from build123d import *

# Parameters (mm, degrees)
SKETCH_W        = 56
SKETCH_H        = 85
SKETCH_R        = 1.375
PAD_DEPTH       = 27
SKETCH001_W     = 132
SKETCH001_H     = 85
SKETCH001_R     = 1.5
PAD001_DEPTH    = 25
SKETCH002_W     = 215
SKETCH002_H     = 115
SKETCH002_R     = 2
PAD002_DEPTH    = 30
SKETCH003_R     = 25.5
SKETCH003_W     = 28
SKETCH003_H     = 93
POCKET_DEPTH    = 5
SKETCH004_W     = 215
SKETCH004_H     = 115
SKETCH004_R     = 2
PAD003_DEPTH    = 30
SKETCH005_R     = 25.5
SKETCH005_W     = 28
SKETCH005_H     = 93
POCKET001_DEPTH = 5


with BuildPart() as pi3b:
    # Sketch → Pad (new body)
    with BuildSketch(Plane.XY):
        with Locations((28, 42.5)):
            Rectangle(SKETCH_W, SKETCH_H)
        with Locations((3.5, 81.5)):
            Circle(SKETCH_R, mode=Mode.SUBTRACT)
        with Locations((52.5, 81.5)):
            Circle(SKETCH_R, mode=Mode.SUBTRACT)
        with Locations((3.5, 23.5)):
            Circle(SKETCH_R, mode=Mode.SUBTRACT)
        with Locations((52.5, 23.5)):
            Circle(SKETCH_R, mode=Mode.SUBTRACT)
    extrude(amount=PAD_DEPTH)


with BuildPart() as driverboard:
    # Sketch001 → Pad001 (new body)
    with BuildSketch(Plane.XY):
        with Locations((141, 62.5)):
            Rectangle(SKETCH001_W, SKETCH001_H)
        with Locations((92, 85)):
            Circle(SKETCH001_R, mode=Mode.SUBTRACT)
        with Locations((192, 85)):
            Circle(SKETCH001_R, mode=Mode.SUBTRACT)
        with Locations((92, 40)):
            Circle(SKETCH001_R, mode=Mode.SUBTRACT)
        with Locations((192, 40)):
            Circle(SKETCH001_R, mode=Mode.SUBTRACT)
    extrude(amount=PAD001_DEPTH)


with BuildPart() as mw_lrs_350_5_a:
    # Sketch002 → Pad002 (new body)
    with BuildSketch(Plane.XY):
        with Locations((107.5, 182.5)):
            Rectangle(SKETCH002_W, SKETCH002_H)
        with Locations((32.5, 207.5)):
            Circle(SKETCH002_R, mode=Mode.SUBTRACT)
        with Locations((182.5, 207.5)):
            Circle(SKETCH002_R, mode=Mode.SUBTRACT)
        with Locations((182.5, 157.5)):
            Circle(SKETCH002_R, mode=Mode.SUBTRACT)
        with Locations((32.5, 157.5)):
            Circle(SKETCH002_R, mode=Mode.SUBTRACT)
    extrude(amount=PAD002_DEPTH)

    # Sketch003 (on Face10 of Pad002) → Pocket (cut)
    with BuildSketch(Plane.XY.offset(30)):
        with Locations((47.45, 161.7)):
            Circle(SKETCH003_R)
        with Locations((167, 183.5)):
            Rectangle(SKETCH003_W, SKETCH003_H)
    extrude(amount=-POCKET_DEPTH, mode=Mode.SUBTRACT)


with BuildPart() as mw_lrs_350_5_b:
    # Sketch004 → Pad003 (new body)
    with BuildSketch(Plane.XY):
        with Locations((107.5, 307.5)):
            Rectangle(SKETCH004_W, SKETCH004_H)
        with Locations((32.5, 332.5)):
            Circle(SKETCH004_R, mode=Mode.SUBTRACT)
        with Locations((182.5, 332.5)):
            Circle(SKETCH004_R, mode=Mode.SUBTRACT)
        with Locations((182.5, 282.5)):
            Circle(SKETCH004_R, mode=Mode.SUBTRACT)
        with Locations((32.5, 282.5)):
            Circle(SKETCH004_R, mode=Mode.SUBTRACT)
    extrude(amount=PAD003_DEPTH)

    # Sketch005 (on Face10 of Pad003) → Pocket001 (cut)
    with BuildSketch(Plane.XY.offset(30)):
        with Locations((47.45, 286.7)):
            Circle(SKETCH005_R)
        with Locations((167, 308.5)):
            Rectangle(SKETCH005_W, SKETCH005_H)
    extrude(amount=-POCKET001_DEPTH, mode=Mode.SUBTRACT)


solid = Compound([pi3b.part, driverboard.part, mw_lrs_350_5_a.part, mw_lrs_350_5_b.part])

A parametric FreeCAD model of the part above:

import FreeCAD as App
import Part
import Sketcher

V = App.Vector
Q = App.Units.Quantity


def add_polygon(sketch, points):
    """Adds a closed chain of lines whose ends are joined by coincident constraints."""
    first, n = sketch.GeometryCount, len(points)
    for a, b in zip(points, points[1:] + points[:1]):
        sketch.addGeometry(Part.LineSegment(App.Vector(*a, 0), App.Vector(*b, 0)), False)
    for i in range(n):
        sketch.addConstraint(Sketcher.Constraint("Coincident", first + i, 2, first + (i + 1) % n, 1))

doc = App.newDocument("Part")
body = doc.addObject("PartDesign::Body", "Body")

# Sketch on XY plane
sketch1 = body.newObject("Sketcher::SketchObject", "Sketch")
sketch1.AttachmentSupport = (doc.getObject("XY_Plane"), [""])
sketch1.MapMode = "FlatFace"
add_polygon(sketch1, [(0, 85), (0, 0), (56, 0), (56, 85)])  # lines 0-3
sketch1.addGeometry(Part.Circle(V(3.5, 23.5, 0), V(0, 0, 1), 1.375), False)  # 4
sketch1.addGeometry(Part.Circle(V(52.5, 23.5, 0), V(0, 0, 1), 1.375), False)  # 5
sketch1.addGeometry(Part.Circle(V(3.5, 81.5, 0), V(0, 0, 1), 1.375), False)  # 6
sketch1.addGeometry(Part.Circle(V(52.5, 81.5, 0), V(0, 0, 1), 1.375), False)  # 7
sketch1.addConstraint(Sketcher.Constraint("Vertical", 0))
sketch1.addConstraint(Sketcher.Constraint("Horizontal", 1))
sketch1.addConstraint(Sketcher.Constraint("Vertical", 2))
sketch1.addConstraint(Sketcher.Constraint("Horizontal", 3))
sketch1.addConstraint(Sketcher.Constraint("Coincident", 0, 2, -1, 1))
sketch1.addConstraint(Sketcher.Constraint("Equal", 4, 5))
sketch1.addConstraint(Sketcher.Constraint("Equal", 5, 6))
sketch1.addConstraint(Sketcher.Constraint("Equal", 6, 7))
sketch1.addConstraint(Sketcher.Constraint("Horizontal", 4, 3, 5, 3))
sketch1.addConstraint(Sketcher.Constraint("Horizontal", 6, 3, 7, 3))
sketch1.addConstraint(Sketcher.Constraint("Vertical", 4, 3, 6, 3))
sketch1.addConstraint(Sketcher.Constraint("Vertical", 5, 3, 7, 3))
sketch1.addConstraint(Sketcher.Constraint("Diameter", 4, Q("2.75 mm")))
sketch1.addConstraint(Sketcher.Constraint("DistanceX", 1, 1, 1, 2, Q("56 mm")))
sketch1.addConstraint(Sketcher.Constraint("DistanceY", 0, 2, 0, 1, Q("85 mm")))
sketch1.addConstraint(Sketcher.Constraint("DistanceX", 4, 3, 5, 3, Q("49 mm")))
sketch1.addConstraint(Sketcher.Constraint("DistanceY", 4, 3, 6, 3, Q("58 mm")))
sketch1.addConstraint(Sketcher.Constraint("DistanceX", -1, 1, 4, 3, Q("3.5 mm")))
sketch1.addConstraint(Sketcher.Constraint("DistanceY", -1, 1, 4, 3, Q("23.5 mm")))
pad1 = body.newObject("PartDesign::Pad", "Pad")
pad1.Profile = sketch1
pad1.Length = 27
body2 = doc.addObject("PartDesign::Body", "Body001")

# Sketch on XY plane
sketch2 = body2.newObject("Sketcher::SketchObject", "Sketch001")
sketch2.AttachmentSupport = (doc.getObject("XY_Plane001"), [""])
sketch2.MapMode = "FlatFace"
add_polygon(sketch2, [(75, 105), (75, 20), (207, 20), (207, 105)])  # lines 0-3
sketch2.addGeometry(Part.Circle(V(92, 40, 0), V(0, 0, 1), 1.5), False)  # 4
sketch2.addGeometry(Part.Circle(V(192, 40, 0), V(0, 0, 1), 1.5), False)  # 5
sketch2.addGeometry(Part.Circle(V(92, 85, 0), V(0, 0, 1), 1.5), False)  # 6
sketch2.addGeometry(Part.Circle(V(192, 85, 0), V(0, 0, 1), 1.5), False)  # 7
sketch2.addConstraint(Sketcher.Constraint("Vertical", 0))
sketch2.addConstraint(Sketcher.Constraint("Horizontal", 1))
sketch2.addConstraint(Sketcher.Constraint("Vertical", 2))
sketch2.addConstraint(Sketcher.Constraint("Horizontal", 3))
sketch2.addConstraint(Sketcher.Constraint("Equal", 4, 5))
sketch2.addConstraint(Sketcher.Constraint("Equal", 5, 6))
sketch2.addConstraint(Sketcher.Constraint("Equal", 6, 7))
sketch2.addConstraint(Sketcher.Constraint("Horizontal", 4, 3, 5, 3))
sketch2.addConstraint(Sketcher.Constraint("Horizontal", 6, 3, 7, 3))
sketch2.addConstraint(Sketcher.Constraint("Vertical", 4, 3, 6, 3))
sketch2.addConstraint(Sketcher.Constraint("Vertical", 5, 3, 7, 3))
sketch2.addConstraint(Sketcher.Constraint("Diameter", 4, Q("3 mm")))
sketch2.addConstraint(Sketcher.Constraint("DistanceX", 1, 1, 1, 2, Q("132 mm")))
sketch2.addConstraint(Sketcher.Constraint("DistanceY", 0, 2, 0, 1, Q("85 mm")))
sketch2.addConstraint(Sketcher.Constraint("DistanceX", -1, 1, 4, 3, Q("92 mm")))
sketch2.addConstraint(Sketcher.Constraint("DistanceY", -1, 1, 4, 3, Q("40 mm")))
sketch2.addConstraint(Sketcher.Constraint("DistanceX", -1, 1, 5, 3, Q("192 mm")))
sketch2.addConstraint(Sketcher.Constraint("DistanceY", -1, 1, 6, 3, Q("85 mm")))
sketch2.addConstraint(Sketcher.Constraint("DistanceX", -1, 1, 0, 2, Q("75 mm")))
sketch2.addConstraint(Sketcher.Constraint("DistanceY", -1, 1, 0, 2, Q("20 mm")))
pad2 = body2.newObject("PartDesign::Pad", "Pad001")
pad2.Profile = sketch2
pad2.Length = 25
body3 = doc.addObject("PartDesign::Body", "Body002")

# Sketch on XY plane
sketch3 = body3.newObject("Sketcher::SketchObject", "Sketch002")
sketch3.AttachmentSupport = (doc.getObject("XY_Plane002"), [""])
sketch3.MapMode = "FlatFace"
add_polygon(sketch3, [(0, 240), (0, 125), (215, 125), (215, 240)])  # lines 0-3
sketch3.addGeometry(Part.Circle(V(32.5, 157.5, 0), V(0, 0, 1), 2), False)  # 4
sketch3.addGeometry(Part.Circle(V(182.5, 157.5, 0), V(0, 0, 1), 2), False)  # 5
sketch3.addGeometry(Part.Circle(V(32.5, 207.5, 0), V(0, 0, 1), 2), False)  # 6
sketch3.addGeometry(Part.Circle(V(182.5, 207.5, 0), V(0, 0, 1), 2), False)  # 7
sketch3.addConstraint(Sketcher.Constraint("Vertical", 0))
sketch3.addConstraint(Sketcher.Constraint("Horizontal", 1))
sketch3.addConstraint(Sketcher.Constraint("Vertical", 2))
sketch3.addConstraint(Sketcher.Constraint("Horizontal", 3))
sketch3.addConstraint(Sketcher.Constraint("Equal", 4, 5))
sketch3.addConstraint(Sketcher.Constraint("Equal", 5, 6))
sketch3.addConstraint(Sketcher.Constraint("Equal", 6, 7))
sketch3.addConstraint(Sketcher.Constraint("PointOnObject", 0, 2, -2))
sketch3.addConstraint(Sketcher.Constraint("Horizontal", 4, 3, 5, 3))
sketch3.addConstraint(Sketcher.Constraint("Horizontal", 6, 3, 7, 3))
sketch3.addConstraint(Sketcher.Constraint("Vertical", 4, 3, 6, 3))
sketch3.addConstraint(Sketcher.Constraint("Vertical", 5, 3, 7, 3))
sketch3.addConstraint(Sketcher.Constraint("Diameter", 4, Q("4 mm")))
sketch3.addConstraint(Sketcher.Constraint("DistanceX", 1, 1, 1, 2, Q("215 mm")))
sketch3.addConstraint(Sketcher.Constraint("DistanceY", 0, 2, 0, 1, Q("115 mm")))
sketch3.addConstraint(Sketcher.Constraint("DistanceY", -1, 1, 0, 2, Q("125 mm")))
sketch3.addConstraint(Sketcher.Constraint("DistanceX", 4, 3, 5, 3, Q("150 mm")))
sketch3.addConstraint(Sketcher.Constraint("DistanceY", 4, 3, 6, 3, Q("50 mm")))
sketch3.addConstraint(Sketcher.Constraint("DistanceX", -1, 1, 4, 3, Q("32.5 mm")))
sketch3.addConstraint(Sketcher.Constraint("DistanceY", -1, 1, 4, 3, Q("157.5 mm")))
pad3 = body3.newObject("PartDesign::Pad", "Pad002")
pad3.Profile = sketch3
pad3.Length = 30

# Sketch on XY plane
sketch4 = body3.newObject("Sketcher::SketchObject", "Sketch003")
sketch4.AttachmentSupport = (doc.getObject("XY_Plane002"), [""])
sketch4.MapMode = "FlatFace"
sketch4.AttachmentOffset = App.Placement(V(0, 0, 30), App.Rotation())
sketch4.addGeometry(Part.Circle(V(47.45, 161.7, 0), V(0, 0, 1), 25.5), False)  # 0
add_polygon(sketch4, [(153, 230), (153, 137), (181, 137), (181, 230)])  # lines 1-4
sketch4.addConstraint(Sketcher.Constraint("Vertical", 1))
sketch4.addConstraint(Sketcher.Constraint("Horizontal", 2))
sketch4.addConstraint(Sketcher.Constraint("Vertical", 3))
sketch4.addConstraint(Sketcher.Constraint("Horizontal", 4))
sketch4.addConstraint(Sketcher.Constraint("Diameter", 0, Q("51 mm")))
sketch4.addConstraint(Sketcher.Constraint("DistanceX", 2, 1, 2, 2, Q("28 mm")))
sketch4.addConstraint(Sketcher.Constraint("DistanceY", 1, 2, 1, 1, Q("93 mm")))
sketch4.addConstraint(Sketcher.Constraint("DistanceX", -1, 1, 1, 2, Q("153 mm")))
sketch4.addConstraint(Sketcher.Constraint("DistanceY", -1, 1, 1, 2, Q("137 mm")))
sketch4.addConstraint(Sketcher.Constraint("DistanceY", -1, 1, 0, 3, Q("161.7 mm")))
sketch4.addConstraint(Sketcher.Constraint("DistanceX", -1, 1, 0, 3, Q("47.45 mm")))
pocket1 = body3.newObject("PartDesign::Pocket", "Pocket")
pocket1.Profile = sketch4
pocket1.Length = 5
body4 = doc.addObject("PartDesign::Body", "Body003")

# Sketch on XY plane
sketch5 = body4.newObject("Sketcher::SketchObject", "Sketch004")
sketch5.AttachmentSupport = (doc.getObject("XY_Plane003"), [""])
sketch5.MapMode = "FlatFace"
add_polygon(sketch5, [(0, 365), (0, 250), (215, 250), (215, 365)])  # lines 0-3
sketch5.addGeometry(Part.Circle(V(32.5, 282.5, 0), V(0, 0, 1), 2), False)  # 4
sketch5.addGeometry(Part.Circle(V(182.5, 282.5, 0), V(0, 0, 1), 2), False)  # 5
sketch5.addGeometry(Part.Circle(V(32.5, 332.5, 0), V(0, 0, 1), 2), False)  # 6
sketch5.addGeometry(Part.Circle(V(182.5, 332.5, 0), V(0, 0, 1), 2), False)  # 7
sketch5.addConstraint(Sketcher.Constraint("Vertical", 0))
sketch5.addConstraint(Sketcher.Constraint("Horizontal", 1))
sketch5.addConstraint(Sketcher.Constraint("Vertical", 2))
sketch5.addConstraint(Sketcher.Constraint("Horizontal", 3))
sketch5.addConstraint(Sketcher.Constraint("Equal", 4, 5))
sketch5.addConstraint(Sketcher.Constraint("Equal", 5, 6))
sketch5.addConstraint(Sketcher.Constraint("Equal", 6, 7))
sketch5.addConstraint(Sketcher.Constraint("PointOnObject", 0, 2, -2))
sketch5.addConstraint(Sketcher.Constraint("Horizontal", 4, 3, 5, 3))
sketch5.addConstraint(Sketcher.Constraint("Horizontal", 6, 3, 7, 3))
sketch5.addConstraint(Sketcher.Constraint("Vertical", 4, 3, 6, 3))
sketch5.addConstraint(Sketcher.Constraint("Vertical", 5, 3, 7, 3))
sketch5.addConstraint(Sketcher.Constraint("Diameter", 4, Q("4 mm")))
sketch5.addConstraint(Sketcher.Constraint("DistanceX", 1, 1, 1, 2, Q("215 mm")))
sketch5.addConstraint(Sketcher.Constraint("DistanceY", 0, 2, 0, 1, Q("115 mm")))
sketch5.addConstraint(Sketcher.Constraint("DistanceY", -1, 1, 0, 2, Q("250 mm")))
sketch5.addConstraint(Sketcher.Constraint("DistanceX", 4, 3, 5, 3, Q("150 mm")))
sketch5.addConstraint(Sketcher.Constraint("DistanceY", 4, 3, 6, 3, Q("50 mm")))
sketch5.addConstraint(Sketcher.Constraint("DistanceX", -1, 1, 4, 3, Q("32.5 mm")))
sketch5.addConstraint(Sketcher.Constraint("DistanceY", -1, 1, 4, 3, Q("282.5 mm")))
pad4 = body4.newObject("PartDesign::Pad", "Pad003")
pad4.Profile = sketch5
pad4.Length = 30

# Sketch on XY plane
sketch6 = body4.newObject("Sketcher::SketchObject", "Sketch005")
sketch6.AttachmentSupport = (doc.getObject("XY_Plane003"), [""])
sketch6.MapMode = "FlatFace"
sketch6.AttachmentOffset = App.Placement(V(0, 0, 30), App.Rotation())
sketch6.addGeometry(Part.Circle(V(47.45, 286.7, 0), V(0, 0, 1), 25.5), False)  # 0
add_polygon(sketch6, [(153, 355), (153, 262), (181, 262), (181, 355)])  # lines 1-4
sketch6.addConstraint(Sketcher.Constraint("Vertical", 1))
sketch6.addConstraint(Sketcher.Constraint("Horizontal", 2))
sketch6.addConstraint(Sketcher.Constraint("Vertical", 3))
sketch6.addConstraint(Sketcher.Constraint("Horizontal", 4))
sketch6.addConstraint(Sketcher.Constraint("Diameter", 0, Q("51 mm")))
sketch6.addConstraint(Sketcher.Constraint("DistanceX", 2, 1, 2, 2, Q("28 mm")))
sketch6.addConstraint(Sketcher.Constraint("DistanceY", 1, 2, 1, 1, Q("93 mm")))
sketch6.addConstraint(Sketcher.Constraint("DistanceX", -1, 1, 1, 2, Q("153 mm")))
sketch6.addConstraint(Sketcher.Constraint("DistanceY", -1, 1, 1, 2, Q("262 mm")))
sketch6.addConstraint(Sketcher.Constraint("DistanceY", -1, 1, 0, 3, Q("286.7 mm")))
sketch6.addConstraint(Sketcher.Constraint("DistanceX", -1, 1, 0, 3, Q("47.45 mm")))
pocket2 = body4.newObject("PartDesign::Pocket", "Pocket001")
pocket2.Profile = sketch6
pocket2.Length = 5

doc.recompute()
